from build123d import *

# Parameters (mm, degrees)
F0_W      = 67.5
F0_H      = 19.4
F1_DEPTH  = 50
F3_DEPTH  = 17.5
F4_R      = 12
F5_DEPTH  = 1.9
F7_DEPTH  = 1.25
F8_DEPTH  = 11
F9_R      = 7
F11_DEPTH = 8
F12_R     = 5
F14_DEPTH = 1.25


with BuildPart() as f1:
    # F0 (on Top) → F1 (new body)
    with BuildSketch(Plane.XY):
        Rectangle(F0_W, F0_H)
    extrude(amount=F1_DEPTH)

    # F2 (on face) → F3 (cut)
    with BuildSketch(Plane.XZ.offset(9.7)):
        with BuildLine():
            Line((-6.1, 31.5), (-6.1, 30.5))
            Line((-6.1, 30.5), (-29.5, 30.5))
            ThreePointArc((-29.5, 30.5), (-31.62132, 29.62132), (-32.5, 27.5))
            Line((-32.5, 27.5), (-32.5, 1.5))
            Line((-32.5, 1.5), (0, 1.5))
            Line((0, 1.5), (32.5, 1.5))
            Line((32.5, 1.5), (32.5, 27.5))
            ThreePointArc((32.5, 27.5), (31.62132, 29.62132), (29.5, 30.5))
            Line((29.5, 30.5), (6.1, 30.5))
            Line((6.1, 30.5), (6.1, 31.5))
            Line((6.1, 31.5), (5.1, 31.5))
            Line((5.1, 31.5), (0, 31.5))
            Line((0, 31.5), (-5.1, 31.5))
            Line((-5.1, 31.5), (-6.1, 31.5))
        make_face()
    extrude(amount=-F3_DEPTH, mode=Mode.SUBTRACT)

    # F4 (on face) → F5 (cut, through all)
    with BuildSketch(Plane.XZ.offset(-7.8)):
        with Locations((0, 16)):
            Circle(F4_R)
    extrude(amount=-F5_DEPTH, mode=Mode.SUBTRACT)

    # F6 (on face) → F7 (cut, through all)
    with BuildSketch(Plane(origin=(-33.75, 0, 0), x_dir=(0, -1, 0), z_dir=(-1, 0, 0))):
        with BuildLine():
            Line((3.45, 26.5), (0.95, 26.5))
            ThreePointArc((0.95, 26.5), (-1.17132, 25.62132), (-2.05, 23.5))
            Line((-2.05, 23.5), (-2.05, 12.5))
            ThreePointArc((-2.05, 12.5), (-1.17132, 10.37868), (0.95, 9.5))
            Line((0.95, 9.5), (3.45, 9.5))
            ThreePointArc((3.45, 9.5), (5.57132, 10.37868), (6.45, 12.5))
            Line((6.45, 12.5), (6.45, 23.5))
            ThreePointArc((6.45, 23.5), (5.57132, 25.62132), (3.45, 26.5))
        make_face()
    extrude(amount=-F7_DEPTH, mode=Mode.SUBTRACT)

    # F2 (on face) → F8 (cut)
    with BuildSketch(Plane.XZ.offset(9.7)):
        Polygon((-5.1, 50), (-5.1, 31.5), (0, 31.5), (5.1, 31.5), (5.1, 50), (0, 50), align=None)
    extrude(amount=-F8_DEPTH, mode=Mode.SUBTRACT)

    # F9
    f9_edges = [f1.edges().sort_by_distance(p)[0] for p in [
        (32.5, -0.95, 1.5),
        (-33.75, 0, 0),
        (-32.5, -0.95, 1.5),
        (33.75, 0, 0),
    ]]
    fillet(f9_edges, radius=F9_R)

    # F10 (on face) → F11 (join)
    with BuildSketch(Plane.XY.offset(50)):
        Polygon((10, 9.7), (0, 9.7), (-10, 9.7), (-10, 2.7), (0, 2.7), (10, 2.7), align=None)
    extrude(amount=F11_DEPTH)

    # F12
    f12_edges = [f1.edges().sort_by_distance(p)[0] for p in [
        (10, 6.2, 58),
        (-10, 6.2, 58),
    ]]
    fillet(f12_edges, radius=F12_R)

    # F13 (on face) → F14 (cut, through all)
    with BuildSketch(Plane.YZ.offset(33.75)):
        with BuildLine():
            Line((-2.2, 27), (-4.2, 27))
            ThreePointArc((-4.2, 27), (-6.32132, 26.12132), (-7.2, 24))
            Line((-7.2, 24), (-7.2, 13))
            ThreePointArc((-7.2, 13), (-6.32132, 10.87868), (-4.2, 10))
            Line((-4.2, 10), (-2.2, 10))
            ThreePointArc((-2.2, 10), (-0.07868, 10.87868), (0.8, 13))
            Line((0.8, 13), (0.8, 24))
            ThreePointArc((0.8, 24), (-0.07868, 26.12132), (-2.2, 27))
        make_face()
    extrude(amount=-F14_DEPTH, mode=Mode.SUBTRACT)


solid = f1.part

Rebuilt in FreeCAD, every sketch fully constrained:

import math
import FreeCAD as App
import Part
import Sketcher


def edges_at(feature, points):
    """Names of the edges that pass closest to the given points."""
    edges = feature.Shape.Edges
    near = lambda p: min(range(len(edges)), key=lambda i: edges[i].distToShape(Part.Vertex(*p))[0])
    return sorted({f"Edge{near(p) + 1}" for p in points})


def add_polygon(sketch, points):
    """Adds a closed chain of lines whose ends are joined by coincident constraints."""
    first, n = sketch.GeometryCount, len(points)
    for a, b in zip(points, points[1:] + points[:1]):
        sketch.addGeometry(Part.LineSegment(App.Vector(*a, 0), App.Vector(*b, 0)), False)
    for i in range(n):
        sketch.addConstraint(Sketcher.Constraint("Coincident", first + i, 2, first + (i + 1) % n, 1))

doc = App.newDocument("Part")
body = doc.addObject("PartDesign::Body", "Body")

# Sketch on XY plane
sketch1 = body.newObject("Sketcher::SketchObject", "Sketch")
sketch1.AttachmentSupport = (doc.getObject("XY_Plane"), [""])
sketch1.MapMode = "FlatFace"
add_polygon(sketch1, [(-34, 10), (-34, -10), (34, -10), (34, 10)])  # lines 0-3
sketch1.addConstraint([
    Sketcher.Constraint("Vertical", 0),
    Sketcher.Constraint("Horizontal", 1),
    Sketcher.Constraint("Vertical", 2),
    Sketcher.Constraint("Horizontal", 3),
    Sketcher.Constraint("Symmetric", 0, 2, 2, 2, -1, 1),
    Sketcher.Constraint("DistanceX", 1, 1, 1, 2, 67.5),
    Sketcher.Constraint("DistanceY", 0, 2, 0, 1, 19.4),
])
pad1 = body.newObject("PartDesign::Pad", "Pad")
pad1.Profile = sketch1
pad1.Length = 50

# Sketch on XZ plane
sketch2 = body.newObject("Sketcher::SketchObject", "Sketch001")
sketch2.AttachmentSupport = (doc.getObject("XZ_Plane"), [""])
sketch2.MapMode = "FlatFace"
sketch2.AttachmentOffset = App.Placement(App.Vector(0, 0, 9.7), App.Rotation())
sketch2.addGeometry([
    Part.LineSegment(App.Vector(-6.1, 31.5, 0), App.Vector(-6.1, 30.5, 0)),  # 0
    Part.LineSegment(App.Vector(-6.1, 30.5, 0), App.Vector(-29.5, 30.5, 0)),  # 1
    Part.ArcOfCircle(Part.Circle(App.Vector(-29.5, 27.5, 0), App.Vector(0, 0, 1), 3), math.radians(90), math.radians(180)),  # 2
    Part.LineSegment(App.Vector(-32.5, 27.5, 0), App.Vector(-32.5, 1.5, 0)),  # 3
    Part.LineSegment(App.Vector(-32.5, 1.5, 0), App.Vector(32.5, 1.5, 0)),  # 4
    Part.LineSegment(App.Vector(32.5, 1.5, 0), App.Vector(32.5, 27.5, 0)),  # 5
    Part.ArcOfCircle(Part.Circle(App.Vector(29.5, 27.5, 0), App.Vector(0, 0, 1), 3), math.radians(0), math.radians(90)),  # 6
    Part.LineSegment(App.Vector(29.5, 30.5, 0), App.Vector(6.1, 30.5, 0)),  # 7
    Part.LineSegment(App.Vector(6.1, 30.5, 0), App.Vector(6.1, 31.5, 0)),  # 8
    Part.LineSegment(App.Vector(6.1, 31.5, 0), App.Vector(-6.1, 31.5, 0)),  # 9
], False)
sketch2.addConstraint([
    Sketcher.Constraint("Coincident", 0, 2, 1, 1),
    Sketcher.Constraint("Tangent", 1, 2, 2, 1),
    Sketcher.Constraint("Tangent", 2, 2, 3, 1),
    Sketcher.Constraint("Coincident", 3, 2, 4, 1),
    Sketcher.Constraint("Coincident", 4, 2, 5, 1),
    Sketcher.Constraint("Tangent", 5, 2, 6, 1),
    Sketcher.Constraint("Tangent", 6, 2, 7, 1),
    Sketcher.Constraint("Coincident", 7, 2, 8, 1),
    Sketcher.Constraint("Coincident", 8, 2, 9, 1),
    Sketcher.Constraint("Coincident", 9, 2, 0, 1),
    Sketcher.Constraint("Vertical", 0),
    Sketcher.Constraint("Horizontal", 1),
    Sketcher.Constraint("Vertical", 3),
    Sketcher.Constraint("Horizontal", 4),
    Sketcher.Constraint("Vertical", 5),
    Sketcher.Constraint("Horizontal", 7),
    Sketcher.Constraint("Vertical", 8),
    Sketcher.Constraint("Horizontal", 9),
    Sketcher.Constraint("Equal", 2, 6),
    Sketcher.Constraint("Symmetric", 2, 3, 6, 3, -2),
    Sketcher.Constraint("Equal", 1, 7),
    Sketcher.Constraint("Radius", 2, 3.000001),
    Sketcher.Constraint("DistanceX", 4, 1, 4, 2, 65.0),
    Sketcher.Constraint("DistanceY", 0, 2, 0, 1, 1.0),
    Sketcher.Constraint("DistanceY", 3, 2, 3, 1, 26.0),
    Sketcher.Constraint("DistanceX", 1, 2, 1, 1, 23.4),
    Sketcher.Constraint("DistanceY", -1, 1, 2, 3, 27.499999),
])
pocket1 = body.newObject("PartDesign::Pocket", "Pocket")
pocket1.Profile = sketch2
pocket1.Length = 17.5

# Sketch on XZ plane
sketch3 = body.newObject("Sketcher::SketchObject", "Sketch002")
sketch3.AttachmentSupport = (doc.getObject("XZ_Plane"), [""])
sketch3.MapMode = "FlatFace"
sketch3.AttachmentOffset = App.Placement(App.Vector(0, 0, -7.8), App.Rotation())
sketch3.addGeometry(Part.Circle(App.Vector(0, 16, 0), App.Vector(0, 0, 1), 12), False)
sketch3.addConstraint([
    Sketcher.Constraint("PointOnObject", 0, 3, -2),
    Sketcher.Constraint("Diameter", 0, 24.0),
    Sketcher.Constraint("DistanceY", -1, 1, 0, 3, 16.0),
])
pocket2 = body.newObject("PartDesign::Pocket", "Pocket001")
pocket2.Profile = sketch3
pocket2.Type = "ThroughAll"

# Sketch on YZ plane
sketch4 = body.newObject("Sketcher::SketchObject", "Sketch003")
sketch4.AttachmentSupport = (doc.getObject("YZ_Plane"), [""])
sketch4.MapMode = "FlatFace"
sketch4.AttachmentOffset = App.Placement(App.Vector(0, 0, -33.75), App.Rotation())
sketch4.addGeometry([
    Part.LineSegment(App.Vector(-3.5, 26.5, 0), App.Vector(-0.9, 26.5, 0)),  # 0
    Part.ArcOfCircle(Part.Circle(App.Vector(-1, 23.5, 0), App.Vector(0, 0, 1), 3), math.radians(0), math.radians(90)),  # 1
    Part.LineSegment(App.Vector(2, 23.5, 0), App.Vector(2, 12.5, 0)),  # 2
    Part.ArcOfCircle(Part.Circle(App.Vector(-1, 12.5, 0), App.Vector(0, 0, 1), 3), math.radians(-90), math.radians(0)),  # 3
    Part.LineSegment(App.Vector(-0.9, 9.5, 0), App.Vector(-3.5, 9.5, 0)),  # 4
    Part.ArcOfCircle(Part.Circle(App.Vector(-3.4, 12.5, 0), App.Vector(0, 0, 1), 3), math.radians(-180), math.radians(-90)),  # 5
    Part.LineSegment(App.Vector(-6.5, 12.5, 0), App.Vector(-6.5, 23.5, 0)),  # 6
    Part.ArcOfCircle(Part.Circle(App.Vector(-3.4, 23.5, 0), App.Vector(0, 0, 1), 3), math.radians(90), math.radians(180)),  # 7
], False)
sketch4.addConstraint([
    Sketcher.Constraint("Tangent", 0, 2, 1, 2),
    Sketcher.Constraint("Tangent", 1, 1, 2, 1),
    Sketcher.Constraint("Tangent", 2, 2, 3, 2),
    Sketcher.Constraint("Tangent", 3, 1, 4, 1),
    Sketcher.Constraint("Tangent", 4, 2, 5, 2),
    Sketcher.Constraint("Tangent", 5, 1, 6, 1),
    Sketcher.Constraint("Tangent", 6, 2, 7, 2),
    Sketcher.Constraint("Tangent", 7, 1, 0, 1),
    Sketcher.Constraint("Horizontal", 0),
    Sketcher.Constraint("Vertical", 2),
    Sketcher.Constraint("Horizontal", 4),
    Sketcher.Constraint("Vertical", 6),
    Sketcher.Constraint("Equal", 1, 3),
    Sketcher.Constraint("Equal", 3, 5),
    Sketcher.Constraint("Equal", 5, 7),
    Sketcher.Constraint("Radius", 1, 3.000001),
    Sketcher.Constraint("DistanceY", 2, 2, 2, 1, 11.0),
    Sketcher.Constraint("DistanceX", 0, 1, 0, 2, 2.5),
    Sketcher.Constraint("DistanceY", -1, 1, 1, 3, 23.499999),
    Sketcher.Constraint("DistanceX", 1, 3, -1, 1, 0.950001),
])
pocket3 = body.newObject("PartDesign::Pocket", "Pocket002")
pocket3.Profile = sketch4
pocket3.Length = 1.25
pocket3.Reversed = True

# Sketch on XZ plane
sketch5 = body.newObject("Sketcher::SketchObject", "Sketch004")
sketch5.AttachmentSupport = (doc.getObject("XZ_Plane"), [""])
sketch5.MapMode = "FlatFace"
sketch5.AttachmentOffset = App.Placement(App.Vector(0, 0, 9.7), App.Rotation())
add_polygon(sketch5, [(-5, 50), (-5, 32), (5, 32), (5, 50)])  # lines 0-3
sketch5.addConstraint([
    Sketcher.Constraint("Vertical", 0),
    Sketcher.Constraint("Horizontal", 1),
    Sketcher.Constraint("Vertical", 2),
    Sketcher.Constraint("Horizontal", 3),
    Sketcher.Constraint("DistanceX", 1, 1, 1, 2, 10.2),
    Sketcher.Constraint("DistanceY", 0, 2, 0, 1, 18.5),
    Sketcher.Constraint("DistanceY", -1, 1, 2, 2, 50.0),
    Sketcher.Constraint("DistanceX", 0, 2, -1, 1, 5.1),
])
pocket4 = body.newObject("PartDesign::Pocket", "Pocket003")
pocket4.Profile = sketch5
pocket4.Length = 11
doc.recompute()

fillet = body.newObject("PartDesign::Fillet", "Fillet")
fillet.Base = (pocket4, edges_at(pocket4, [
    (32.5, -0.95, 1.5),
    (-33.75, 0, 0),
    (-32.5, -0.95, 1.5),
    (33.75, 0, 0),
]))
fillet.Radius = 7

# Sketch on XY plane
sketch6 = body.newObject("Sketcher::SketchObject", "Sketch005")
sketch6.AttachmentSupport = (doc.getObject("XY_Plane"), [""])
sketch6.MapMode = "FlatFace"
sketch6.AttachmentOffset = App.Placement(App.Vector(0, 0, 50), App.Rotation())
add_polygon(sketch6, [(10, 10), (-10, 10), (-10, 3), (10, 3)])  # lines 0-3
sketch6.addConstraint([
    Sketcher.Constraint("Horizontal", 0),
    Sketcher.Constraint("Vertical", 1),
    Sketcher.Constraint("Horizontal", 2),
    Sketcher.Constraint("Vertical", 3),
    Sketcher.Constraint("DistanceX", 0, 2, 0, 1, 20.0),
    Sketcher.Constraint("DistanceY", 1, 2, 1, 1, 7.0),
    Sketcher.Constraint("DistanceX", 0, 2, -1, 1, 10.0),
    Sketcher.Constraint("DistanceY", -1, 1, 0, 2, 9.7),
])
pad2 = body.newObject("PartDesign::Pad", "Pad001")
pad2.Profile = sketch6
pad2.Length = 8
doc.recompute()

fillet2 = body.newObject("PartDesign::Fillet", "Fillet001")
fillet2.Base = (pad2, edges_at(pad2, [(10, 6.2, 58), (-10, 6.2, 58)]))
fillet2.Radius = 5

# Sketch on YZ plane
sketch7 = body.newObject("Sketcher::SketchObject", "Sketch006")
sketch7.AttachmentSupport = (doc.getObject("YZ_Plane"), [""])
sketch7.MapMode = "FlatFace"
sketch7.AttachmentOffset = App.Placement(App.Vector(0, 0, 33.75), App.Rotation())
sketch7.addGeometry([
    Part.LineSegment(App.Vector(-2.2, 27, 0), App.Vector(-4.2, 27, 0)),  # 0
    Part.ArcOfCircle(Part.Circle(App.Vector(-4.2, 24, 0), App.Vector(0, 0, 1), 3), math.radians(90), math.radians(180)),  # 1
    Part.LineSegment(App.Vector(-7.2, 24, 0), App.Vector(-7.2, 13, 0)),  # 2
    Part.ArcOfCircle(Part.Circle(App.Vector(-4.2, 13, 0), App.Vector(0, 0, 1), 3), math.radians(-180), math.radians(-90)),  # 3
    Part.LineSegment(App.Vector(-4.2, 10, 0), App.Vector(-2.2, 10, 0)),  # 4
    Part.ArcOfCircle(Part.Circle(App.Vector(-2.2, 13, 0), App.Vector(0, 0, 1), 3), math.radians(-90), math.radians(0)),  # 5
    Part.LineSegment(App.Vector(0.8, 13, 0), App.Vector(0.8, 24, 0)),  # 6
    Part.ArcOfCircle(Part.Circle(App.Vector(-2.2, 24, 0), App.Vector(0, 0, 1), 3), math.radians(0), math.radians(90)),  # 7
], False)
sketch7.addConstraint([
    Sketcher.Constraint("Tangent", 0, 2, 1, 1),
    Sketcher.Constraint("Tangent", 1, 2, 2, 1),
    Sketcher.Constraint("Tangent", 2, 2, 3, 1),
    Sketcher.Constraint("Tangent", 3, 2, 4, 1),
    Sketcher.Constraint("Tangent", 4, 2, 5, 1),
    Sketcher.Constraint("Tangent", 5, 2, 6, 1),
    Sketcher.Constraint("Tangent", 6, 2, 7, 1),
    Sketcher.Constraint("Tangent", 7, 2, 0, 1),
    Sketcher.Constraint("Horizontal", 0),
    Sketcher.Constraint("Vertical", 2),
    Sketcher.Constraint("Horizontal", 4),
    Sketcher.Constraint("Vertical", 6),
    Sketcher.Constraint("Equal", 1, 3),
    Sketcher.Constraint("Equal", 3, 5),
    Sketcher.Constraint("Equal", 5, 7),
    Sketcher.Constraint("Radius", 1, 3.000001),
    Sketcher.Constraint("DistanceX", 0, 2, 0, 1, 2.0),
    Sketcher.Constraint("DistanceY", 2, 2, 2, 1, 11.0),
    Sketcher.Constraint("DistanceY", -1, 1, 1, 3, 23.999999),
    Sketcher.Constraint("DistanceX", 1, 3, -1, 1, 4.199999),
])
pocket5 = body.newObject("PartDesign::Pocket", "Pocket004")
pocket5.Profile = sketch7
pocket5.Length = 1.25

doc.recompute()
